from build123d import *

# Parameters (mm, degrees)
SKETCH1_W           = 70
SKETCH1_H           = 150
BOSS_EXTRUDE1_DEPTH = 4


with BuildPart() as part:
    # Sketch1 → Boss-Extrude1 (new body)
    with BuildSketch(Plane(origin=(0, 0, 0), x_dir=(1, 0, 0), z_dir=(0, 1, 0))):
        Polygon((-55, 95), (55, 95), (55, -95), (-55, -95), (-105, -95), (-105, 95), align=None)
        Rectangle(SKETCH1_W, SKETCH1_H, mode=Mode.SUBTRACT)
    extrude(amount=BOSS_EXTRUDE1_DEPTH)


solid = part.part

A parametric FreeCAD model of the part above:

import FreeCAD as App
import Part
import Sketcher


def add_polygon(sketch, points):
    """Adds a closed chain of lines whose ends are joined by coincident constraints."""
    first, n = sketch.GeometryCount, len(points)
    for a, b in zip(points, points[1:] + points[:1]):
        sketch.addGeometry(Part.LineSegment(App.Vector(*a, 0), App.Vector(*b, 0)), False)
    for i in range(n):
        sketch.addConstraint(Sketcher.Constraint("Coincident", first + i, 2, first + (i + 1) % n, 1))

doc = App.newDocument("Part")
body = doc.addObject("PartDesign::Body", "Body")

sketch1 = body.newObject("Sketcher::SketchObject", "Sketch")
sketch1.AttachmentSupport = (doc.getObject("XZ_Plane"), [""])
sketch1.MapMode = "FlatFace"
add_polygon(sketch1, [(55, -95), (-105, -95), (-105, 95), (55, 95)])
add_polygon(sketch1, [(-35, 75), (-35, -75), (35, -75), (35, 75)])
sketch1.addConstraint(Sketcher.Constraint("Horizontal", 0))
sketch1.addConstraint(Sketcher.Constraint("Vertical", 1))
sketch1.addConstraint(Sketcher.Constraint("Horizontal", 2))
sketch1.addConstraint(Sketcher.Constraint("Vertical", 3))
sketch1.addConstraint(Sketcher.Constraint("Vertical", 4))
sketch1.addConstraint(Sketcher.Constraint("Horizontal", 5))
sketch1.addConstraint(Sketcher.Constraint("Vertical", 6))
sketch1.addConstraint(Sketcher.Constraint("Horizontal", 7))
sketch1.addConstraint(Sketcher.Constraint("Symmetric", 4, 2, 6, 2, -1, 1))
sketch1.addConstraint(Sketcher.Constraint("DistanceX", 0, 2, 0, 1, 160.0))
sketch1.addConstraint(Sketcher.Constraint("DistanceX", 5, 1, 5, 2, 70.0))
sketch1.addConstraint(Sketcher.Constraint("DistanceY", 1, 1, 1, 2, 190.0))
sketch1.addConstraint(Sketcher.Constraint("DistanceY", 4, 2, 4, 1, 150.0))
sketch1.addConstraint(Sketcher.Constraint("DistanceX", 0, 2, -1, 1, 105.0))
sketch1.addConstraint(Sketcher.Constraint("DistanceY", 0, 2, -1, 1, 95.0))
pad1 = body.newObject("PartDesign::Pad", "Pad")
pad1.Profile = sketch1
pad1.Length = 4
pad1.Reversed = True

doc.recompute()
